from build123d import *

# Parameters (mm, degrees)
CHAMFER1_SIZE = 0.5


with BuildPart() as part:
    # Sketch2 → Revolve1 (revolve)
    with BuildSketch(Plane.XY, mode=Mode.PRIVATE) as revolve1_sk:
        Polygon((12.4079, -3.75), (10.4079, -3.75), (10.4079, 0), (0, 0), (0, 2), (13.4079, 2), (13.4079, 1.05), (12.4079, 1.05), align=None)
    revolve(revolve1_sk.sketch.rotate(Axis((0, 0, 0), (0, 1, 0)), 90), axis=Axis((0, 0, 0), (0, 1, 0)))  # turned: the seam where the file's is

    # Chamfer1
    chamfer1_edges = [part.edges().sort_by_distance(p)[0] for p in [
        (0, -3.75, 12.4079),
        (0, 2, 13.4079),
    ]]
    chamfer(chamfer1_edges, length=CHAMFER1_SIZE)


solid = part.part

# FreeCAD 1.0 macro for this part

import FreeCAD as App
import Part
import Sketcher
from FreeCAD import Vector


def edges_at(feature, points):
    """Names of the edges that pass closest to the given points."""
    edges = feature.Shape.Edges
    near = lambda p: min(range(len(edges)), key=lambda i: edges[i].distToShape(Part.Vertex(*p))[0])
    return sorted({f"Edge{near(p) + 1}" for p in points})


def add_polygon(sketch, points):
    """Adds a closed chain of lines whose ends are joined by coincident constraints."""
    first, n = sketch.GeometryCount, len(points)
    for a, b in zip(points, points[1:] + points[:1]):
        sketch.addGeometry(Part.LineSegment(App.Vector(*a, 0), App.Vector(*b, 0)), False)
    for i in range(n):
        sketch.addConstraint(Sketcher.Constraint("Coincident", first + i, 2, first + (i + 1) % n, 1))

doc = App.newDocument("Part")
body = doc.addObject("PartDesign::Body", "Body")

# Sketch on XY plane
sketch1 = body.newObject("Sketcher::SketchObject", "Sketch")
sketch1.AttachmentSupport = (doc.getObject("XY_Plane"), [""])
sketch1.MapMode = "FlatFace"
add_polygon(sketch1, [(10.4079, -3.75), (12.4079, -3.75), (12.4079, 1.05), (13.4079, 1.05), (13.4079, 2), (0, 2), (0, 0), (10.4079, 0)])  # lines 0-7
sketch1.addConstraint([
    Sketcher.Constraint("Horizontal", 0),
    Sketcher.Constraint("Vertical", 1),
    Sketcher.Constraint("Horizontal", 2),
    Sketcher.Constraint("Vertical", 3),
    Sketcher.Constraint("Horizontal", 4),
    Sketcher.Constraint("Vertical", 5),
    Sketcher.Constraint("Horizontal", 6),
    Sketcher.Constraint("Vertical", 7),
    Sketcher.Constraint("Coincident", 5, 2, -1, 1),
    Sketcher.Constraint("Equal", 0, 5),
    Sketcher.Constraint("DistanceX", 0, 1, 0, 2, 2.0),
    Sketcher.Constraint("DistanceX", 2, 1, 2, 2, 1.0),
    Sketcher.Constraint("DistanceY", 1, 1, 1, 2, 4.8),
    Sketcher.Constraint("DistanceY", 3, 1, 3, 2, 0.95),
    Sketcher.Constraint("DistanceX", 4, 2, 4, 1, 13.4079),
])
revolution = body.newObject("PartDesign::Revolution", "Revolution")
revolution.Profile = sketch1
revolution.ReferenceAxis = (sketch1, ["V_Axis"])
revolution.Angle = 360
doc.recompute()

chamfer = body.newObject("PartDesign::Chamfer", "Chamfer")
chamfer.Base = (revolution, edges_at(revolution, [(0, -3.75, 12.408), (0, 2, 13.408)]))
chamfer.Size = 0.5

doc.recompute()
